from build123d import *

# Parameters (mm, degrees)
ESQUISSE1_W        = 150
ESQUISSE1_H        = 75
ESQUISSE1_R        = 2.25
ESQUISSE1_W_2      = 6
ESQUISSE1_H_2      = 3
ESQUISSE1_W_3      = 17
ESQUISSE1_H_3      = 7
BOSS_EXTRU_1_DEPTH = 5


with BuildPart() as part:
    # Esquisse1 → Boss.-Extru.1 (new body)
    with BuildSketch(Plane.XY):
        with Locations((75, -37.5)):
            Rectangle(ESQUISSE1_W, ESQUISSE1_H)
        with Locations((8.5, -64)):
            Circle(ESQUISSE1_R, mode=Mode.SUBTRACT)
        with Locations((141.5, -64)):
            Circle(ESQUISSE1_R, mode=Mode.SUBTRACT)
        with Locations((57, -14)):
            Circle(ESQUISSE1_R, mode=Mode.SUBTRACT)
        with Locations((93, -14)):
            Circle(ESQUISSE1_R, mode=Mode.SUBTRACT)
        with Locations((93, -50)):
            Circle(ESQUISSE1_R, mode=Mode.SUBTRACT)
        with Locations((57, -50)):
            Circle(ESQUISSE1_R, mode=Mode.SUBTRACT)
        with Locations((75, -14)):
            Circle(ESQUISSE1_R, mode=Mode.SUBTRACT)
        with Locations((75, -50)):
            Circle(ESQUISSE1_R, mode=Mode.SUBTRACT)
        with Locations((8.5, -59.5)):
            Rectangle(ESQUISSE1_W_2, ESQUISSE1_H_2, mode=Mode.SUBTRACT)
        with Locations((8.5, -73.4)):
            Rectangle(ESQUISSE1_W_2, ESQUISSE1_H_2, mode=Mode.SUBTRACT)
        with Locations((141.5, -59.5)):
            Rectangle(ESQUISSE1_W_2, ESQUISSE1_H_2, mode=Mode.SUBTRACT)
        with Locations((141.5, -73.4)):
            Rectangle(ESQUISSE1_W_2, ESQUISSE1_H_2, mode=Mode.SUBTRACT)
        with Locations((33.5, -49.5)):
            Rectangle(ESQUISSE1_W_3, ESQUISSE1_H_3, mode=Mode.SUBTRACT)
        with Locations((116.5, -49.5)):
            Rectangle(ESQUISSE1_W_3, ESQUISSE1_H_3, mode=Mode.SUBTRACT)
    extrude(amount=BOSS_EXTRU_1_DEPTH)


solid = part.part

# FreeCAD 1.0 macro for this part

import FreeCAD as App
import Part
import Sketcher


def add_polygon(sketch, points):
    """Adds a closed chain of lines whose ends are joined by coincident constraints."""
    first, n = sketch.GeometryCount, len(points)
    for a, b in zip(points, points[1:] + points[:1]):
        sketch.addGeometry(Part.LineSegment(App.Vector(*a, 0), App.Vector(*b, 0)), False)
    for i in range(n):
        sketch.addConstraint(Sketcher.Constraint("Coincident", first + i, 2, first + (i + 1) % n, 1))

doc = App.newDocument("Part")
body = doc.addObject("PartDesign::Body", "Body")

sketch1 = doc.addObject("Sketcher::SketchObject", "Sketch")
body.addObject(sketch1)
sketch1.AttachmentSupport = (doc.XY_Plane, [""])
sketch1.MapMode = "FlatFace"
add_polygon(sketch1, [(0, 0), (0, -75), (150, -75), (150, 0)])
add_polygon(sketch1, [(11.5, -74.9), (5.5, -74.9), (5.5, -71.9), (11.5, -71.9)])
sketch1.addGeometry(Part.Circle(App.Vector(8.5, -64, 0), App.Vector(0, 0, 1), 2.25), False)
add_polygon(sketch1, [(11.5, -61), (5.5, -61), (5.5, -58), (11.5, -58)])
add_polygon(sketch1, [(42, -53), (25, -53), (25, -46), (42, -46)])
sketch1.addGeometry(Part.Circle(App.Vector(57, -50, 0), App.Vector(0, 0, 1), 2.25), False)
add_polygon(sketch1, [(144.5, -74.9), (138.5, -74.9), (138.5, -71.9), (144.5, -71.9)])
sketch1.addGeometry(Part.Circle(App.Vector(141.5, -64, 0), App.Vector(0, 0, 1), 2.25), False)
add_polygon(sketch1, [(144.5, -61), (138.5, -61), (138.5, -58), (144.5, -58)])
sketch1.addGeometry(Part.Circle(App.Vector(75, -50, 0), App.Vector(0, 0, 1), 2.25), False)
sketch1.addGeometry(Part.Circle(App.Vector(93, -50, 0), App.Vector(0, 0, 1), 2.25), False)
add_polygon(sketch1, [(125, -53), (108, -53), (108, -46), (125, -46)])
sketch1.addGeometry(Part.Circle(App.Vector(57, -14, 0), App.Vector(0, 0, 1), 2.25), False)
sketch1.addGeometry(Part.Circle(App.Vector(75, -14, 0), App.Vector(0, 0, 1), 2.25), False)
sketch1.addGeometry(Part.Circle(App.Vector(93, -14, 0), App.Vector(0, 0, 1), 2.25), False)
sketch1.addConstraint([
    Sketcher.Constraint("Vertical", 0),
    Sketcher.Constraint("Horizontal", 1),
    Sketcher.Constraint("Vertical", 2),
    Sketcher.Constraint("Horizontal", 3),
    Sketcher.Constraint("Horizontal", 4),
    Sketcher.Constraint("Vertical", 5),
    Sketcher.Constraint("Horizontal", 6),
    Sketcher.Constraint("Vertical", 7),
    Sketcher.Constraint("Horizontal", 9),
    Sketcher.Constraint("Vertical", 10),
    Sketcher.Constraint("Horizontal", 11),
    Sketcher.Constraint("Vertical", 12),
    Sketcher.Constraint("Horizontal", 13),
    Sketcher.Constraint("Vertical", 14),
    Sketcher.Constraint("Horizontal", 15),
    Sketcher.Constraint("Vertical", 16),
    Sketcher.Constraint("Horizontal", 18),
    Sketcher.Constraint("Vertical", 19),
    Sketcher.Constraint("Horizontal", 20),
    Sketcher.Constraint("Vertical", 21),
    Sketcher.Constraint("Horizontal", 23),
    Sketcher.Constraint("Vertical", 24),
    Sketcher.Constraint("Horizontal", 25),
    Sketcher.Constraint("Vertical", 26),
    Sketcher.Constraint("Horizontal", 29),
    Sketcher.Constraint("Vertical", 30),
    Sketcher.Constraint("Horizontal", 31),
    Sketcher.Constraint("Vertical", 32),
    Sketcher.Constraint("Coincident", 3, 2, -1, 1),
    Sketcher.Constraint("Equal", 8, 17),
    Sketcher.Constraint("Equal", 17, 22),
    Sketcher.Constraint("Equal", 22, 27),
    Sketcher.Constraint("Equal", 27, 28),
    Sketcher.Constraint("Equal", 28, 33),
    Sketcher.Constraint("Equal", 33, 34),
    Sketcher.Constraint("Equal", 34, 35),
    Sketcher.Constraint("Horizontal", 8, 3, 22, 3),
    Sketcher.Constraint("Horizontal", 17, 3, 27, 3),
    Sketcher.Constraint("Horizontal", 27, 3, 28, 3),
    Sketcher.Constraint("Horizontal", 33, 3, 34, 3),
    Sketcher.Constraint("Horizontal", 34, 3, 35, 3),
    Sketcher.Constraint("Horizontal", 7, 2, 18, 2),
    Sketcher.Constraint("Horizontal", 6, 2, 19, 2),
    Sketcher.Constraint("Horizontal", 12, 2, 23, 2),
    Sketcher.Constraint("Horizontal", 11, 2, 24, 2),
    Sketcher.Constraint("Horizontal", 16, 2, 29, 2),
    Sketcher.Constraint("Horizontal", 15, 2, 30, 2),
    Sketcher.Constraint("Vertical", 17, 3, 33, 3),
    Sketcher.Constraint("Vertical", 27, 3, 34, 3),
    Sketcher.Constraint("Vertical", 28, 3, 35, 3),
    Sketcher.Constraint("Vertical", 5, 2, 9, 2),
    Sketcher.Constraint("Vertical", 7, 2, 11, 2),
    Sketcher.Constraint("Vertical", 19, 2, 23, 2),
    Sketcher.Constraint("Vertical", 21, 2, 25, 2),
    Sketcher.Constraint("Equal", 11, 18),
    Sketcher.Constraint("Equal", 15, 29),
    Sketcher.Constraint("Equal", 7, 10),
    Sketcher.Constraint("Diameter", 8, 4.5),
    Sketcher.Constraint("DistanceX", 1, 1, 1, 2, 150.0),
    Sketcher.Constraint("DistanceX", 4, 2, 4, 1, 6.0),
    Sketcher.Constraint("DistanceX", 13, 2, 13, 1, 17.0),
    Sketcher.Constraint("DistanceY", 0, 2, 0, 1, 75.0),
    Sketcher.Constraint("DistanceY", 5, 1, 5, 2, 3.0),
    Sketcher.Constraint("DistanceY", 14, 1, 14, 2, 7.0),
    Sketcher.Constraint("DistanceY", 8, 3, -1, 1, 64.0),
    Sketcher.Constraint("DistanceX", -1, 1, 17, 3, 57.0),
    Sketcher.Constraint("DistanceY", 17, 3, -1, 1, 50.0),
    Sketcher.Constraint("DistanceX", -1, 1, 27, 3, 75.0),
    Sketcher.Constraint("DistanceX", -1, 1, 28, 3, 93.0),
    Sketcher.Constraint("DistanceY", 33, 3, -1, 1, 14.0),
    Sketcher.Constraint("DistanceY", 9, 2, -1, 1, 61.0),
    Sketcher.Constraint("DistanceX", -1, 1, 13, 2, 25.0),
    Sketcher.Constraint("DistanceY", 13, 2, -1, 1, 53.0),
    Sketcher.Constraint("DistanceX", -1, 1, 29, 2, 108.0),
    Sketcher.Constraint("DistanceX", 8, 3, 22, 3, 133.0),
    Sketcher.Constraint("DistanceX", 4, 2, 8, 3, 3.0),
    Sketcher.Constraint("DistanceX", 18, 2, 22, 3, 3.0),
    Sketcher.Constraint("DistanceX", -1, 1, 8, 3, 8.5),
    Sketcher.Constraint("DistanceY", 4, 2, -1, 1, 74.9),
])
pad1 = doc.addObject("PartDesign::Pad", "Pad")
body.addObject(pad1)
pad1.Profile = sketch1
pad1.Length = 5

doc.recompute()
